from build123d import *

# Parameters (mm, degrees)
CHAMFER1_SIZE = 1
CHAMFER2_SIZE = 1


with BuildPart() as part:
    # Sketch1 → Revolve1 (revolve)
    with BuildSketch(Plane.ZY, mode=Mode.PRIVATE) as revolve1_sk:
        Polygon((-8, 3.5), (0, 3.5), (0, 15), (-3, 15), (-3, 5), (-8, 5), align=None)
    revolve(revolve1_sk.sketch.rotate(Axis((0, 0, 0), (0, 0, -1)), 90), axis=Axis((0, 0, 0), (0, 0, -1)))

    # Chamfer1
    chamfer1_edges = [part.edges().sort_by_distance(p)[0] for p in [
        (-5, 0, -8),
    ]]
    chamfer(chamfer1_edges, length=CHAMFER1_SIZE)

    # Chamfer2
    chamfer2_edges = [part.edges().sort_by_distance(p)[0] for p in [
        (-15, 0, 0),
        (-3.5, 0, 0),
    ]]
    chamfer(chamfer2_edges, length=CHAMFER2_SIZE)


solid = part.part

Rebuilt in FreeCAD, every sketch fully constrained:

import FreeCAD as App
import Part
import Sketcher
from FreeCAD import Vector


def edges_at(feature, points):
    """Names of the edges that pass closest to the given points."""
    edges = feature.Shape.Edges
    near = lambda p: min(range(len(edges)), key=lambda i: edges[i].distToShape(Part.Vertex(*p))[0])
    return sorted({f"Edge{near(p) + 1}" for p in points})


def add_polygon(sketch, points):
    """Adds a closed chain of lines whose ends are joined by coincident constraints."""
    first, n = sketch.GeometryCount, len(points)
    for a, b in zip(points, points[1:] + points[:1]):
        sketch.addGeometry(Part.LineSegment(App.Vector(*a, 0), App.Vector(*b, 0)), False)
    for i in range(n):
        sketch.addConstraint(Sketcher.Constraint("Coincident", first + i, 2, first + (i + 1) % n, 1))

doc = App.newDocument("Part")
params = doc.addObject("Spreadsheet::Sheet", "Params")
for row, (alias, value) in enumerate([
    ("sketch1_width", "10 mm"),
    ("sketch1_height", "8 mm"),
    ("sketch1_height2", "3 mm"),
    ("sketch1_width2", "11.5 mm"),
    ("revolution_angle", "360 deg"),
    ("chamfer_size", "1 mm"),
    ("chamfer2_size", "1 mm"),
], start=1):
    params.set(f"A{row}", alias)
    params.set(f"B{row}", "=" + value)
    params.setAlias(f"B{row}", alias)

body = doc.addObject("PartDesign::Body", "Body")

# Sketch on YZ plane
sketch1 = body.newObject("Sketcher::SketchObject", "Sketch")
sketch1.AttachmentSupport = (doc.getObject("YZ_Plane"), [""])
sketch1.MapMode = "FlatFace"
add_polygon(sketch1, [(3.5, -8), (3.5, 0), (15, 0), (15, -3), (5, -3), (5, -8)])  # lines 0-5
sketch1.addConstraint(Sketcher.Constraint("Vertical", 0))
sketch1.addConstraint(Sketcher.Constraint("Horizontal", 1))
sketch1.addConstraint(Sketcher.Constraint("Vertical", 2))
sketch1.addConstraint(Sketcher.Constraint("Horizontal", 3))
sketch1.addConstraint(Sketcher.Constraint("Vertical", 4))
sketch1.addConstraint(Sketcher.Constraint("Horizontal", 5))
sketch1.addConstraint(Sketcher.Constraint("PointOnObject", 0, 2, -1))
sketch1.addConstraint(Sketcher.Constraint("DistanceX", 3, 2, 3, 1, 10.0))
sketch1.addConstraint(Sketcher.Constraint("DistanceY", 0, 1, 0, 2, 8.0))
sketch1.addConstraint(Sketcher.Constraint("DistanceY", 2, 2, 2, 1, 3.0))
sketch1.addConstraint(Sketcher.Constraint("DistanceX", 1, 1, 1, 2, 11.5))
sketch1.addConstraint(Sketcher.Constraint("DistanceX", -1, 1, 1, 2, 15.0))
sketch1.setExpression("Constraints[13]", "Params.sketch1_width")
sketch1.setExpression("Constraints[14]", "Params.sketch1_height")
sketch1.setExpression("Constraints[15]", "Params.sketch1_height2")
sketch1.setExpression("Constraints[16]", "Params.sketch1_width2")
revolution = body.newObject("PartDesign::Revolution", "Revolution")
revolution.Profile = sketch1
revolution.ReferenceAxis = (sketch1, ["V_Axis"])
revolution.setExpression("Angle", "Params.revolution_angle")
doc.recompute()

chamfer = body.newObject("PartDesign::Chamfer", "Chamfer")
chamfer.Base = (revolution, edges_at(revolution, [(-5, 0, -8)]))
chamfer.setExpression("Size", "Params.chamfer_size")
doc.recompute()

chamfer2 = body.newObject("PartDesign::Chamfer", "Chamfer001")
chamfer2.Base = (chamfer, edges_at(chamfer, [(-15, 0, 0), (-3.5, 0, 0)]))
chamfer2.setExpression("Size", "Params.chamfer2_size")

doc.recompute()
